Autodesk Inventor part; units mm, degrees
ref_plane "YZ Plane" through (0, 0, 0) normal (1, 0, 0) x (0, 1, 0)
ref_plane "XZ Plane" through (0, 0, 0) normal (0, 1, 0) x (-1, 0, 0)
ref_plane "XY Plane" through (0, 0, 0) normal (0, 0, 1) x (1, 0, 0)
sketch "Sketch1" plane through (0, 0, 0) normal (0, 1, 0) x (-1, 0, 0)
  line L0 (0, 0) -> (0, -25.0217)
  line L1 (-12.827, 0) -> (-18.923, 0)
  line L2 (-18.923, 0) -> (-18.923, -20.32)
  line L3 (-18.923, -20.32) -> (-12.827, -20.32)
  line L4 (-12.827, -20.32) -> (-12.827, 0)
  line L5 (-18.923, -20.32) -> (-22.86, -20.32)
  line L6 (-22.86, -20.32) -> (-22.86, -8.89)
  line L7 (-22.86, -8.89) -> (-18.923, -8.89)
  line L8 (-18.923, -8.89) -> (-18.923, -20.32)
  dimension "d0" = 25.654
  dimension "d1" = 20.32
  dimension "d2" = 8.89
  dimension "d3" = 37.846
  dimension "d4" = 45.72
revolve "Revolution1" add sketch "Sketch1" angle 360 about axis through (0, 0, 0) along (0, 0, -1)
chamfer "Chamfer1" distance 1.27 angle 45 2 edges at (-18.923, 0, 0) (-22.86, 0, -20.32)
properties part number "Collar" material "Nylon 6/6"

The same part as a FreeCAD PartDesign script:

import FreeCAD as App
import Part
import Sketcher
from FreeCAD import Vector
Q = App.Units.Quantity


def edges_at(feature, points):
    """Names of the edges that pass closest to the given points."""
    edges = feature.Shape.Edges
    near = lambda p: min(range(len(edges)), key=lambda i: edges[i].distToShape(Part.Vertex(*p))[0])
    return sorted({f"Edge{near(p) + 1}" for p in points})

doc = App.newDocument("Part")
params = doc.addObject("Spreadsheet::Sheet", "Params")
for row, (alias, value) in enumerate([
    ("sketch1_height", "0.8 in"),
    ("sketch1_height2", "0.35 in"),
    ("sketch1_width", "0.24 in"),
    ("sketch1_width2", "0.155 in"),
    ("revolution_angle", "360 deg"),
    ("chamfer_size", "0.05 in"),
], start=1):
    params.set(f"A{row}", alias)
    params.set(f"B{row}", "=" + value)
    params.setAlias(f"B{row}", alias)

body = doc.addObject("PartDesign::Body", "Body")

sketch1 = doc.addObject("Sketcher::SketchObject", "Sketch")
body.addObject(sketch1)
sketch1.AttachmentSupport = (doc.XZ_Plane, [""])
sketch1.MapMode = "FlatFace"
sketch1.addGeometry(Part.LineSegment(Vector(12.8, -20.3, 0), Vector(12.8, 0, 0)), False)
sketch1.addGeometry(Part.LineSegment(Vector(12.8, 0, 0), Vector(18.9, 0, 0)), False)
sketch1.addGeometry(Part.LineSegment(Vector(18.9, 0, 0), Vector(18.9, -8.9, 0)), False)
sketch1.addGeometry(Part.LineSegment(Vector(18.9, -8.9, 0), Vector(22.9, -8.9, 0)), False)
sketch1.addGeometry(Part.LineSegment(Vector(22.9, -8.9, 0), Vector(22.9, -20.3, 0)), False)
sketch1.addGeometry(Part.LineSegment(Vector(22.9, -20.3, 0), Vector(12.8, -20.3, 0)), False)
sketch1.addConstraint(Sketcher.Constraint("Coincident", 0, 2, 1, 1))
sketch1.addConstraint(Sketcher.Constraint("Coincident", 1, 2, 2, 1))
sketch1.addConstraint(Sketcher.Constraint("Coincident", 2, 2, 3, 1))
sketch1.addConstraint(Sketcher.Constraint("Coincident", 3, 2, 4, 1))
sketch1.addConstraint(Sketcher.Constraint("Coincident", 4, 2, 5, 1))
sketch1.addConstraint(Sketcher.Constraint("Coincident", 5, 2, 0, 1))
sketch1.addConstraint(Sketcher.Constraint("Vertical", 0))
sketch1.addConstraint(Sketcher.Constraint("Horizontal", 1))
sketch1.addConstraint(Sketcher.Constraint("Vertical", 2))
sketch1.addConstraint(Sketcher.Constraint("Horizontal", 3))
sketch1.addConstraint(Sketcher.Constraint("Vertical", 4))
sketch1.addConstraint(Sketcher.Constraint("Horizontal", 5))
sketch1.addConstraint(Sketcher.Constraint("PointOnObject", 0, 2, -1))
sketch1.addConstraint(Sketcher.Constraint("DistanceY", 0, 1, 0, 2, Q("0.8 in")))
sketch1.addConstraint(Sketcher.Constraint("DistanceY", 2, 2, 2, 1, Q("0.35 in")))
sketch1.addConstraint(Sketcher.Constraint("DistanceX", 1, 1, 1, 2, Q("0.24 in")))
sketch1.addConstraint(Sketcher.Constraint("DistanceX", -1, 1, 3, 2, Q("0.9 in")))
sketch1.addConstraint(Sketcher.Constraint("DistanceX", 3, 1, 3, 2, Q("0.155 in")))
sketch1.setExpression("Constraints[13]", "Params.sketch1_height")
sketch1.setExpression("Constraints[14]", "Params.sketch1_height2")
sketch1.setExpression("Constraints[15]", "Params.sketch1_width")
sketch1.setExpression("Constraints[17]", "Params.sketch1_width2")
revolution = doc.addObject("PartDesign::Revolution", "Revolution")
body.addObject(revolution)
revolution.Profile = sketch1
revolution.ReferenceAxis = (sketch1, ["V_Axis"])
revolution.setExpression("Angle", "Params.revolution_angle")
doc.recompute()

chamfer = doc.addObject("PartDesign::Chamfer", "Chamfer")
body.addObject(chamfer)
chamfer.Base = (revolution, edges_at(revolution, [(-18.923, 0, 0), (-22.86, 0, -20.32)]))
chamfer.setExpression("Size", "Params.chamfer_size")

doc.recompute()
